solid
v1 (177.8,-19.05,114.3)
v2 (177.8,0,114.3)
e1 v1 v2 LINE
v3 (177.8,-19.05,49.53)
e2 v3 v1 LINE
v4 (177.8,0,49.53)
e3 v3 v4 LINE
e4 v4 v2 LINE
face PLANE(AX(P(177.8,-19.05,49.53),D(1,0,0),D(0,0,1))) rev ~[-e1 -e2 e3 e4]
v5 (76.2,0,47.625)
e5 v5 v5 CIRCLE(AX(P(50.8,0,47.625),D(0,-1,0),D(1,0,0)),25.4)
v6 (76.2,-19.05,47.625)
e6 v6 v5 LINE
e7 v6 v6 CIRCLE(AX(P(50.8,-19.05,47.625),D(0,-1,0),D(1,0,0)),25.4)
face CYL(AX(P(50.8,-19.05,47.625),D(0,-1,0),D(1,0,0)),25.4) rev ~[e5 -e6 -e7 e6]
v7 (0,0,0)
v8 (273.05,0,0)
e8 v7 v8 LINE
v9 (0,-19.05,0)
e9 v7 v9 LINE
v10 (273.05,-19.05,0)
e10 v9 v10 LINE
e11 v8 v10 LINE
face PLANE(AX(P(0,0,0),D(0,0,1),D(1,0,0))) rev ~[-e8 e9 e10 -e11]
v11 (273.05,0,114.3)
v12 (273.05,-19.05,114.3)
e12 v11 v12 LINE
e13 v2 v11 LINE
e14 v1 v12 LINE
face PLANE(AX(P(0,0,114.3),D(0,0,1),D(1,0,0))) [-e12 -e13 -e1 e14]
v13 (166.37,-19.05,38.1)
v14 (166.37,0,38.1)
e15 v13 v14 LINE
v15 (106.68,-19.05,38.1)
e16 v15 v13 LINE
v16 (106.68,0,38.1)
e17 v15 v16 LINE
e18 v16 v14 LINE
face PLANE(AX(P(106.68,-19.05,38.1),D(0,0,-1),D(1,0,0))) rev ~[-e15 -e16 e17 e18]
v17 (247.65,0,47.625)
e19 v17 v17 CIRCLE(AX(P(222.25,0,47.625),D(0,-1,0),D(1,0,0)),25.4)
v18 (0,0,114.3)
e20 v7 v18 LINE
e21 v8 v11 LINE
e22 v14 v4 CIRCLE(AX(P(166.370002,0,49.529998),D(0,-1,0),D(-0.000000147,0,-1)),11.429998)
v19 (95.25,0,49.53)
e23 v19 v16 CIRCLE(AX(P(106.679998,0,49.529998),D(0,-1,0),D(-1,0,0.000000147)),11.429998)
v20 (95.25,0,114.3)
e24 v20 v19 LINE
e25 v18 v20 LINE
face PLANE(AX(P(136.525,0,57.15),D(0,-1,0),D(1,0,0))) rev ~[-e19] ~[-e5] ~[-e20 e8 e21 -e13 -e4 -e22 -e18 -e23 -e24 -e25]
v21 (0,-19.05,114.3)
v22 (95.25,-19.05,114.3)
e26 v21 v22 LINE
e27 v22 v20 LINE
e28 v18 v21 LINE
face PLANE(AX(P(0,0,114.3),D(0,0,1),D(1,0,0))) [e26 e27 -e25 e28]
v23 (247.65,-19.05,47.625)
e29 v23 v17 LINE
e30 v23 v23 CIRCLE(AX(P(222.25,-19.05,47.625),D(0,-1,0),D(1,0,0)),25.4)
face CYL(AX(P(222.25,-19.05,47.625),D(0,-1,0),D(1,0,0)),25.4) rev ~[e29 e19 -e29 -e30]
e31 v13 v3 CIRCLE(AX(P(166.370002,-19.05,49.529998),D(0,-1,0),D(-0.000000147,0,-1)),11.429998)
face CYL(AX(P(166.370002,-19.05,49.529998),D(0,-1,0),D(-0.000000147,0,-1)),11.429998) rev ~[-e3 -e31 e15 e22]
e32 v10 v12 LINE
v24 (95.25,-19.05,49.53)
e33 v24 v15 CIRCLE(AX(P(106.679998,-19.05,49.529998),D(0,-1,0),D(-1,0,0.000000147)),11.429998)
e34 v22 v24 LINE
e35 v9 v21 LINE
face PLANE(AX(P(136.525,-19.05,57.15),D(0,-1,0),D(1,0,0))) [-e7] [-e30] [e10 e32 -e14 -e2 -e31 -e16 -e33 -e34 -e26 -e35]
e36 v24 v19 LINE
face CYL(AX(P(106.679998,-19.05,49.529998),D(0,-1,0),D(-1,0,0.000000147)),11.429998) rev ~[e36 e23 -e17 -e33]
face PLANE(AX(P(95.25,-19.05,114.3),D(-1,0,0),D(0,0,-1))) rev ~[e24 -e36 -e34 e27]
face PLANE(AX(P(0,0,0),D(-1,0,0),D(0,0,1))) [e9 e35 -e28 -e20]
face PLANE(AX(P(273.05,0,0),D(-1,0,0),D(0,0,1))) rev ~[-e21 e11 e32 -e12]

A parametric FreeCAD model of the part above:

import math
import FreeCAD as App
import Part
import Sketcher
from FreeCAD import Vector
Q = App.Units.Quantity

doc = App.newDocument("Part")
body = doc.addObject("PartDesign::Body", "Body")

sketch1 = body.newObject("Sketcher::SketchObject", "Sketch")
sketch1.AttachmentSupport = (doc.getObject("XZ_Plane"), [""])
sketch1.MapMode = "FlatFace"
sketch1.addGeometry([
    Part.LineSegment(Vector(0, 114, 0), Vector(0, 0, 0)),
    Part.LineSegment(Vector(0, 0, 0), Vector(273, 0, 0)),
    Part.LineSegment(Vector(273, 0, 0), Vector(273, 114, 0)),
    Part.LineSegment(Vector(273, 114, 0), Vector(0, 114, 0)),
], False)
sketch1.addConstraint([
    Sketcher.Constraint("Coincident", 0, 2, 1, 1),
    Sketcher.Constraint("Coincident", 1, 2, 2, 1),
    Sketcher.Constraint("Coincident", 2, 2, 3, 1),
    Sketcher.Constraint("Coincident", 3, 2, 0, 1),
    Sketcher.Constraint("Vertical", 0),
    Sketcher.Constraint("Horizontal", 1),
    Sketcher.Constraint("Vertical", 2),
    Sketcher.Constraint("Horizontal", 3),
    Sketcher.Constraint("Coincident", 0, 2, -1, 1),
    Sketcher.Constraint("DistanceY", 0, 2, 0, 1, Q("4.5 in")),
    Sketcher.Constraint("DistanceX", 1, 1, 1, 2, Q("10.75 in")),
])
pad1 = body.newObject("PartDesign::Pad", "Pad")
pad1.Profile = sketch1
pad1.Length = Q("0.75 in")

sketch2 = body.newObject("Sketcher::SketchObject", "Sketch001")
sketch2.AttachmentSupport = (doc.getObject("XZ_Plane"), [""])
sketch2.MapMode = "FlatFace"
sketch2.AttachmentOffset = App.Placement(Vector(0, 0, 0.75 * 25.4), App.Rotation())
sketch2.addGeometry([
    Part.Circle(Vector(222, 48, 0), Vector(0, 0, 1), 25),
    Part.Circle(Vector(51, 48, 0), Vector(0, 0, 1), 25),
], False)
sketch2.addConstraint([
    Sketcher.Constraint("Equal", 0, 1),
    Sketcher.Constraint("Horizontal", 0, 3, 1, 3),
    Sketcher.Constraint("Diameter", 0, Q("2 in")),
    Sketcher.Constraint("DistanceX", -1, 1, 1, 3, Q("2 in")),
    Sketcher.Constraint("DistanceX", -1, 1, 0, 3, Q("8.75 in")),
    Sketcher.Constraint("DistanceY", -1, 1, 0, 3, Q("1.875 in")),
])
pocket1 = body.newObject("PartDesign::Pocket", "Pocket")
pocket1.Profile = sketch2
pocket1.Length = Q("1 in")

sketch3 = body.newObject("Sketcher::SketchObject", "Sketch002")
sketch3.AttachmentSupport = (doc.getObject("XZ_Plane"), [""])
sketch3.MapMode = "FlatFace"
sketch3.AttachmentOffset = App.Placement(Vector(0, 0, 0.75 * 25.4), App.Rotation())
sketch3.addGeometry([
    Part.LineSegment(Vector(178, 114, 0), Vector(95, 114, 0)),
    Part.LineSegment(Vector(95, 114, 0), Vector(95, 50, 0)),
    Part.ArcOfCircle(Part.Circle(Vector(107, 50, 0), Vector(0, 0, 1), 11), math.radians(180), math.radians(270)),
    Part.LineSegment(Vector(107, 38, 0), Vector(166, 38, 0)),
    Part.ArcOfCircle(Part.Circle(Vector(166, 50, 0), Vector(0, 0, 1), 11), math.radians(-90), math.radians(0)),
    Part.LineSegment(Vector(178, 50, 0), Vector(178, 114, 0)),
], False)
sketch3.addConstraint([
    Sketcher.Constraint("Coincident", 0, 2, 1, 1),
    Sketcher.Constraint("Tangent", 1, 2, 2, 1),
    Sketcher.Constraint("Tangent", 2, 2, 3, 1),
    Sketcher.Constraint("Tangent", 3, 2, 4, 1),
    Sketcher.Constraint("Tangent", 4, 2, 5, 1),
    Sketcher.Constraint("Coincident", 5, 2, 0, 1),
    Sketcher.Constraint("Horizontal", 0),
    Sketcher.Constraint("Vertical", 1),
    Sketcher.Constraint("Horizontal", 3),
    Sketcher.Constraint("Vertical", 5),
    Sketcher.Constraint("Equal", 2, 4),
    Sketcher.Constraint("Radius", 2, Q("0.4499999 in")),
    Sketcher.Constraint("DistanceX", -1, 1, 4, 2, Q("7 in")),
    Sketcher.Constraint("DistanceY", 2, 2, 0, 2, Q("3 in")),
    Sketcher.Constraint("DistanceX", 0, 2, 0, 1, Q("3.25 in")),
    Sketcher.Constraint("DistanceY", -1, 1, 0, 2, Q("4.5 in")),
])
pocket2 = body.newObject("PartDesign::Pocket", "Pocket001")
pocket2.Profile = sketch3
pocket2.Length = Q("1 in")

doc.recompute()
